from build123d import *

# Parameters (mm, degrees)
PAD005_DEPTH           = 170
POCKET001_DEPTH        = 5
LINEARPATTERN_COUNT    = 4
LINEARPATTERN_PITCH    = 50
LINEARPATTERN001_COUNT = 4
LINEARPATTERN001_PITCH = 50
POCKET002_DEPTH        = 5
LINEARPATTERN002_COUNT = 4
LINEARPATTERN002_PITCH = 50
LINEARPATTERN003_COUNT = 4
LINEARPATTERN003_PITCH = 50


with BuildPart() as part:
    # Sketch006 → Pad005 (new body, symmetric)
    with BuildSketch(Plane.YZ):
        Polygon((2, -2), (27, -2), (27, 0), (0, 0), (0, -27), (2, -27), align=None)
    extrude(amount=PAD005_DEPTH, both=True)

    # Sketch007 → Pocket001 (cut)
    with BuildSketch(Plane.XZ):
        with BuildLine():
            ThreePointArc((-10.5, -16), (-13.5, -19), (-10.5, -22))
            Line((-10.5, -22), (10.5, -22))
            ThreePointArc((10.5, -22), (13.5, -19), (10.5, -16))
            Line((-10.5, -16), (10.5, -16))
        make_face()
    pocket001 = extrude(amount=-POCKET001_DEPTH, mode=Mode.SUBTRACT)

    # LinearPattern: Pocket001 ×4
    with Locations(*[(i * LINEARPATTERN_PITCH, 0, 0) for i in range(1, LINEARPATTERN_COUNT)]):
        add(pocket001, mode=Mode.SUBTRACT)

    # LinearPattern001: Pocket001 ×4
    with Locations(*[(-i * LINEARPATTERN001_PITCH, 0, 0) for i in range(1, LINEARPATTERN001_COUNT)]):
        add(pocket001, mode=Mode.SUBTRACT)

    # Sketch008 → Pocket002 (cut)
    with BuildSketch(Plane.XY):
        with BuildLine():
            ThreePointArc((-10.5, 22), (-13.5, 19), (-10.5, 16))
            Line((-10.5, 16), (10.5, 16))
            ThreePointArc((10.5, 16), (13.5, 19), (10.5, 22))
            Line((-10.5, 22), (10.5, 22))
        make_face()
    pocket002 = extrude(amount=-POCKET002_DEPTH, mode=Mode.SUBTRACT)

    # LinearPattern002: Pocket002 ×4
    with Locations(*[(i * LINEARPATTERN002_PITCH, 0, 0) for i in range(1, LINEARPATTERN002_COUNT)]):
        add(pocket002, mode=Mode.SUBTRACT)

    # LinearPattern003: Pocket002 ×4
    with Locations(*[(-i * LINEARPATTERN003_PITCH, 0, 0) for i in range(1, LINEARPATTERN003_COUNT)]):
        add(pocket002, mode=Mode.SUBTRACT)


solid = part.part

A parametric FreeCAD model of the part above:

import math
import FreeCAD as App
import Part
import Sketcher
from FreeCAD import Vector


def add_polygon(sketch, points):
    """Adds a closed chain of lines whose ends are joined by coincident constraints."""
    first, n = sketch.GeometryCount, len(points)
    for a, b in zip(points, points[1:] + points[:1]):
        sketch.addGeometry(Part.LineSegment(App.Vector(*a, 0), App.Vector(*b, 0)), False)
    for i in range(n):
        sketch.addConstraint(Sketcher.Constraint("Coincident", first + i, 2, first + (i + 1) % n, 1))

doc = App.newDocument("Part")
params = doc.addObject("Spreadsheet::Sheet", "Params")
for row, (alias, value) in enumerate([
    ("sketch1_width", "25 mm"),
    ("sketch1_width2", "27 mm"),
    ("pad1_length", "340 mm"),
    ("sketch2_radius", "3 mm"),
    ("sketch2_width", "21 mm"),
    ("pocket1_length", "5 mm"),
    ("linearpattern_pitch", "50 mm"),
    ("linearpattern2_pitch", "50 mm"),
    ("sketch3_radius", "3 mm"),
    ("sketch3_width", "21 mm"),
    ("pocket2_length", "5 mm"),
    ("linearpattern3_pitch", "50 mm"),
    ("linearpattern4_pitch", "50 mm"),
], start=1):
    params.set(f"A{row}", alias)
    params.set(f"B{row}", "=" + value)
    params.setAlias(f"B{row}", alias)

body = doc.addObject("PartDesign::Body", "Body")

sketch1 = body.newObject("Sketcher::SketchObject", "Sketch")
sketch1.AttachmentSupport = (doc.getObject("YZ_Plane"), [""])
sketch1.MapMode = "FlatFace"
add_polygon(sketch1, [(2, -2), (27, -2), (27, 0), (0, 0), (0, -27), (2, -27)])
sketch1.addConstraint([
    Sketcher.Constraint("Horizontal", 0),
    Sketcher.Constraint("Vertical", 1),
    Sketcher.Constraint("Horizontal", 2),
    Sketcher.Constraint("Vertical", 3),
    Sketcher.Constraint("Horizontal", 4),
    Sketcher.Constraint("Vertical", 5),
    Sketcher.Constraint("Coincident", 2, 2, -1, 1),
    Sketcher.Constraint("Equal", 4, 1),
    Sketcher.Constraint("Equal", 2, 3),
    Sketcher.Constraint("DistanceX", 0, 1, 0, 2, 25.0),
    Sketcher.Constraint("DistanceX", 2, 2, 2, 1, 27.0),
])
sketch1.setExpression("Constraints[15]", "Params.sketch1_width")
sketch1.setExpression("Constraints[16]", "Params.sketch1_width2")
pad1 = body.newObject("PartDesign::Pad", "Pad")
pad1.Profile = sketch1
pad1.setExpression("Length", "Params.pad1_length")
pad1.Midplane = True

sketch2 = body.newObject("Sketcher::SketchObject", "Sketch001")
sketch2.AttachmentSupport = (doc.getObject("XZ_Plane"), [""])
sketch2.MapMode = "FlatFace"
sketch2.addGeometry([
    Part.ArcOfCircle(Part.Circle(Vector(-10.5, -19, 0), Vector(0, 0, 1), 3), math.radians(90), math.radians(270)),
    Part.LineSegment(Vector(-10.5, -22, 0), Vector(10.5, -22, 0)),
    Part.ArcOfCircle(Part.Circle(Vector(10.5, -19, 0), Vector(0, 0, 1), 3), math.radians(-90), math.radians(90)),
    Part.LineSegment(Vector(10.5, -16, 0), Vector(-10.5, -16, 0)),
], False)
sketch2.addConstraint([
    Sketcher.Constraint("Tangent", 0, 2, 1, 1),
    Sketcher.Constraint("Tangent", 1, 2, 2, 1),
    Sketcher.Constraint("Tangent", 2, 2, 3, 1),
    Sketcher.Constraint("Tangent", 3, 2, 0, 1),
    Sketcher.Constraint("Horizontal", 1),
    Sketcher.Constraint("Horizontal", 3),
    Sketcher.Constraint("Radius", 0, 3.0),
    Sketcher.Constraint("DistanceX", 1, 1, 1, 2, 21.0),
    Sketcher.Constraint("DistanceY", 0, 3, -1, 1, 19.0),
    Sketcher.Constraint("DistanceX", 0, 3, -1, 1, 10.5),
])
sketch2.setExpression("Constraints[6]", "Params.sketch2_radius")
sketch2.setExpression("Constraints[7]", "Params.sketch2_width")
pocket1 = body.newObject("PartDesign::Pocket", "Pocket")
pocket1.Profile = sketch2
pocket1.setExpression("Length", "Params.pocket1_length")
doc.recompute()

linearpattern = body.newObject("PartDesign::LinearPattern", "LinearPattern")
linearpattern.Originals = [pocket1]
linearpattern.Direction = (doc.getObject("X_Axis"), [""])
linearpattern.Mode = "offset"
linearpattern.setExpression("Offset", "Params.linearpattern_pitch")
linearpattern.Occurrences = 4
body.Tip = linearpattern
doc.recompute()

linearpattern2 = body.newObject("PartDesign::LinearPattern", "LinearPattern001")
linearpattern2.Originals = [pocket1]
linearpattern2.Direction = (doc.getObject("X_Axis"), [""])
linearpattern2.Mode = "offset"
linearpattern2.setExpression("Offset", "Params.linearpattern2_pitch")
linearpattern2.Occurrences = 4
linearpattern2.Reversed = True
body.Tip = linearpattern2

sketch3 = body.newObject("Sketcher::SketchObject", "Sketch002")
sketch3.AttachmentSupport = (doc.getObject("XY_Plane"), [""])
sketch3.MapMode = "FlatFace"
sketch3.addGeometry([
    Part.ArcOfCircle(Part.Circle(Vector(-10.5, 19, 0), Vector(0, 0, 1), 3), math.radians(90), math.radians(270)),
    Part.LineSegment(Vector(-10.5, 16, 0), Vector(10.5, 16, 0)),
    Part.ArcOfCircle(Part.Circle(Vector(10.5, 19, 0), Vector(0, 0, 1), 3), math.radians(-90), math.radians(90)),
    Part.LineSegment(Vector(10.5, 22, 0), Vector(-10.5, 22, 0)),
], False)
sketch3.addConstraint([
    Sketcher.Constraint("Tangent", 0, 2, 1, 1),
    Sketcher.Constraint("Tangent", 1, 2, 2, 1),
    Sketcher.Constraint("Tangent", 2, 2, 3, 1),
    Sketcher.Constraint("Tangent", 3, 2, 0, 1),
    Sketcher.Constraint("Horizontal", 1),
    Sketcher.Constraint("Horizontal", 3),
    Sketcher.Constraint("Radius", 0, 3.0),
    Sketcher.Constraint("DistanceX", 1, 1, 1, 2, 21.0),
    Sketcher.Constraint("DistanceY", -1, 1, 0, 3, 19.0),
    Sketcher.Constraint("DistanceX", 0, 3, -1, 1, 10.5),
])
sketch3.setExpression("Constraints[6]", "Params.sketch3_radius")
sketch3.setExpression("Constraints[7]", "Params.sketch3_width")
pocket2 = body.newObject("PartDesign::Pocket", "Pocket001")
pocket2.Profile = sketch3
pocket2.setExpression("Length", "Params.pocket2_length")
doc.recompute()

linearpattern3 = body.newObject("PartDesign::LinearPattern", "LinearPattern002")
linearpattern3.Originals = [pocket2]
linearpattern3.Direction = (doc.getObject("X_Axis"), [""])
linearpattern3.Mode = "offset"
linearpattern3.setExpression("Offset", "Params.linearpattern3_pitch")
linearpattern3.Occurrences = 4
body.Tip = linearpattern3
doc.recompute()

linearpattern4 = body.newObject("PartDesign::LinearPattern", "LinearPattern003")
linearpattern4.Originals = [pocket2]
linearpattern4.Direction = (doc.getObject("X_Axis"), [""])
linearpattern4.Mode = "offset"
linearpattern4.setExpression("Offset", "Params.linearpattern4_pitch")
linearpattern4.Occurrences = 4
linearpattern4.Reversed = True
body.Tip = linearpattern4

doc.recompute()
